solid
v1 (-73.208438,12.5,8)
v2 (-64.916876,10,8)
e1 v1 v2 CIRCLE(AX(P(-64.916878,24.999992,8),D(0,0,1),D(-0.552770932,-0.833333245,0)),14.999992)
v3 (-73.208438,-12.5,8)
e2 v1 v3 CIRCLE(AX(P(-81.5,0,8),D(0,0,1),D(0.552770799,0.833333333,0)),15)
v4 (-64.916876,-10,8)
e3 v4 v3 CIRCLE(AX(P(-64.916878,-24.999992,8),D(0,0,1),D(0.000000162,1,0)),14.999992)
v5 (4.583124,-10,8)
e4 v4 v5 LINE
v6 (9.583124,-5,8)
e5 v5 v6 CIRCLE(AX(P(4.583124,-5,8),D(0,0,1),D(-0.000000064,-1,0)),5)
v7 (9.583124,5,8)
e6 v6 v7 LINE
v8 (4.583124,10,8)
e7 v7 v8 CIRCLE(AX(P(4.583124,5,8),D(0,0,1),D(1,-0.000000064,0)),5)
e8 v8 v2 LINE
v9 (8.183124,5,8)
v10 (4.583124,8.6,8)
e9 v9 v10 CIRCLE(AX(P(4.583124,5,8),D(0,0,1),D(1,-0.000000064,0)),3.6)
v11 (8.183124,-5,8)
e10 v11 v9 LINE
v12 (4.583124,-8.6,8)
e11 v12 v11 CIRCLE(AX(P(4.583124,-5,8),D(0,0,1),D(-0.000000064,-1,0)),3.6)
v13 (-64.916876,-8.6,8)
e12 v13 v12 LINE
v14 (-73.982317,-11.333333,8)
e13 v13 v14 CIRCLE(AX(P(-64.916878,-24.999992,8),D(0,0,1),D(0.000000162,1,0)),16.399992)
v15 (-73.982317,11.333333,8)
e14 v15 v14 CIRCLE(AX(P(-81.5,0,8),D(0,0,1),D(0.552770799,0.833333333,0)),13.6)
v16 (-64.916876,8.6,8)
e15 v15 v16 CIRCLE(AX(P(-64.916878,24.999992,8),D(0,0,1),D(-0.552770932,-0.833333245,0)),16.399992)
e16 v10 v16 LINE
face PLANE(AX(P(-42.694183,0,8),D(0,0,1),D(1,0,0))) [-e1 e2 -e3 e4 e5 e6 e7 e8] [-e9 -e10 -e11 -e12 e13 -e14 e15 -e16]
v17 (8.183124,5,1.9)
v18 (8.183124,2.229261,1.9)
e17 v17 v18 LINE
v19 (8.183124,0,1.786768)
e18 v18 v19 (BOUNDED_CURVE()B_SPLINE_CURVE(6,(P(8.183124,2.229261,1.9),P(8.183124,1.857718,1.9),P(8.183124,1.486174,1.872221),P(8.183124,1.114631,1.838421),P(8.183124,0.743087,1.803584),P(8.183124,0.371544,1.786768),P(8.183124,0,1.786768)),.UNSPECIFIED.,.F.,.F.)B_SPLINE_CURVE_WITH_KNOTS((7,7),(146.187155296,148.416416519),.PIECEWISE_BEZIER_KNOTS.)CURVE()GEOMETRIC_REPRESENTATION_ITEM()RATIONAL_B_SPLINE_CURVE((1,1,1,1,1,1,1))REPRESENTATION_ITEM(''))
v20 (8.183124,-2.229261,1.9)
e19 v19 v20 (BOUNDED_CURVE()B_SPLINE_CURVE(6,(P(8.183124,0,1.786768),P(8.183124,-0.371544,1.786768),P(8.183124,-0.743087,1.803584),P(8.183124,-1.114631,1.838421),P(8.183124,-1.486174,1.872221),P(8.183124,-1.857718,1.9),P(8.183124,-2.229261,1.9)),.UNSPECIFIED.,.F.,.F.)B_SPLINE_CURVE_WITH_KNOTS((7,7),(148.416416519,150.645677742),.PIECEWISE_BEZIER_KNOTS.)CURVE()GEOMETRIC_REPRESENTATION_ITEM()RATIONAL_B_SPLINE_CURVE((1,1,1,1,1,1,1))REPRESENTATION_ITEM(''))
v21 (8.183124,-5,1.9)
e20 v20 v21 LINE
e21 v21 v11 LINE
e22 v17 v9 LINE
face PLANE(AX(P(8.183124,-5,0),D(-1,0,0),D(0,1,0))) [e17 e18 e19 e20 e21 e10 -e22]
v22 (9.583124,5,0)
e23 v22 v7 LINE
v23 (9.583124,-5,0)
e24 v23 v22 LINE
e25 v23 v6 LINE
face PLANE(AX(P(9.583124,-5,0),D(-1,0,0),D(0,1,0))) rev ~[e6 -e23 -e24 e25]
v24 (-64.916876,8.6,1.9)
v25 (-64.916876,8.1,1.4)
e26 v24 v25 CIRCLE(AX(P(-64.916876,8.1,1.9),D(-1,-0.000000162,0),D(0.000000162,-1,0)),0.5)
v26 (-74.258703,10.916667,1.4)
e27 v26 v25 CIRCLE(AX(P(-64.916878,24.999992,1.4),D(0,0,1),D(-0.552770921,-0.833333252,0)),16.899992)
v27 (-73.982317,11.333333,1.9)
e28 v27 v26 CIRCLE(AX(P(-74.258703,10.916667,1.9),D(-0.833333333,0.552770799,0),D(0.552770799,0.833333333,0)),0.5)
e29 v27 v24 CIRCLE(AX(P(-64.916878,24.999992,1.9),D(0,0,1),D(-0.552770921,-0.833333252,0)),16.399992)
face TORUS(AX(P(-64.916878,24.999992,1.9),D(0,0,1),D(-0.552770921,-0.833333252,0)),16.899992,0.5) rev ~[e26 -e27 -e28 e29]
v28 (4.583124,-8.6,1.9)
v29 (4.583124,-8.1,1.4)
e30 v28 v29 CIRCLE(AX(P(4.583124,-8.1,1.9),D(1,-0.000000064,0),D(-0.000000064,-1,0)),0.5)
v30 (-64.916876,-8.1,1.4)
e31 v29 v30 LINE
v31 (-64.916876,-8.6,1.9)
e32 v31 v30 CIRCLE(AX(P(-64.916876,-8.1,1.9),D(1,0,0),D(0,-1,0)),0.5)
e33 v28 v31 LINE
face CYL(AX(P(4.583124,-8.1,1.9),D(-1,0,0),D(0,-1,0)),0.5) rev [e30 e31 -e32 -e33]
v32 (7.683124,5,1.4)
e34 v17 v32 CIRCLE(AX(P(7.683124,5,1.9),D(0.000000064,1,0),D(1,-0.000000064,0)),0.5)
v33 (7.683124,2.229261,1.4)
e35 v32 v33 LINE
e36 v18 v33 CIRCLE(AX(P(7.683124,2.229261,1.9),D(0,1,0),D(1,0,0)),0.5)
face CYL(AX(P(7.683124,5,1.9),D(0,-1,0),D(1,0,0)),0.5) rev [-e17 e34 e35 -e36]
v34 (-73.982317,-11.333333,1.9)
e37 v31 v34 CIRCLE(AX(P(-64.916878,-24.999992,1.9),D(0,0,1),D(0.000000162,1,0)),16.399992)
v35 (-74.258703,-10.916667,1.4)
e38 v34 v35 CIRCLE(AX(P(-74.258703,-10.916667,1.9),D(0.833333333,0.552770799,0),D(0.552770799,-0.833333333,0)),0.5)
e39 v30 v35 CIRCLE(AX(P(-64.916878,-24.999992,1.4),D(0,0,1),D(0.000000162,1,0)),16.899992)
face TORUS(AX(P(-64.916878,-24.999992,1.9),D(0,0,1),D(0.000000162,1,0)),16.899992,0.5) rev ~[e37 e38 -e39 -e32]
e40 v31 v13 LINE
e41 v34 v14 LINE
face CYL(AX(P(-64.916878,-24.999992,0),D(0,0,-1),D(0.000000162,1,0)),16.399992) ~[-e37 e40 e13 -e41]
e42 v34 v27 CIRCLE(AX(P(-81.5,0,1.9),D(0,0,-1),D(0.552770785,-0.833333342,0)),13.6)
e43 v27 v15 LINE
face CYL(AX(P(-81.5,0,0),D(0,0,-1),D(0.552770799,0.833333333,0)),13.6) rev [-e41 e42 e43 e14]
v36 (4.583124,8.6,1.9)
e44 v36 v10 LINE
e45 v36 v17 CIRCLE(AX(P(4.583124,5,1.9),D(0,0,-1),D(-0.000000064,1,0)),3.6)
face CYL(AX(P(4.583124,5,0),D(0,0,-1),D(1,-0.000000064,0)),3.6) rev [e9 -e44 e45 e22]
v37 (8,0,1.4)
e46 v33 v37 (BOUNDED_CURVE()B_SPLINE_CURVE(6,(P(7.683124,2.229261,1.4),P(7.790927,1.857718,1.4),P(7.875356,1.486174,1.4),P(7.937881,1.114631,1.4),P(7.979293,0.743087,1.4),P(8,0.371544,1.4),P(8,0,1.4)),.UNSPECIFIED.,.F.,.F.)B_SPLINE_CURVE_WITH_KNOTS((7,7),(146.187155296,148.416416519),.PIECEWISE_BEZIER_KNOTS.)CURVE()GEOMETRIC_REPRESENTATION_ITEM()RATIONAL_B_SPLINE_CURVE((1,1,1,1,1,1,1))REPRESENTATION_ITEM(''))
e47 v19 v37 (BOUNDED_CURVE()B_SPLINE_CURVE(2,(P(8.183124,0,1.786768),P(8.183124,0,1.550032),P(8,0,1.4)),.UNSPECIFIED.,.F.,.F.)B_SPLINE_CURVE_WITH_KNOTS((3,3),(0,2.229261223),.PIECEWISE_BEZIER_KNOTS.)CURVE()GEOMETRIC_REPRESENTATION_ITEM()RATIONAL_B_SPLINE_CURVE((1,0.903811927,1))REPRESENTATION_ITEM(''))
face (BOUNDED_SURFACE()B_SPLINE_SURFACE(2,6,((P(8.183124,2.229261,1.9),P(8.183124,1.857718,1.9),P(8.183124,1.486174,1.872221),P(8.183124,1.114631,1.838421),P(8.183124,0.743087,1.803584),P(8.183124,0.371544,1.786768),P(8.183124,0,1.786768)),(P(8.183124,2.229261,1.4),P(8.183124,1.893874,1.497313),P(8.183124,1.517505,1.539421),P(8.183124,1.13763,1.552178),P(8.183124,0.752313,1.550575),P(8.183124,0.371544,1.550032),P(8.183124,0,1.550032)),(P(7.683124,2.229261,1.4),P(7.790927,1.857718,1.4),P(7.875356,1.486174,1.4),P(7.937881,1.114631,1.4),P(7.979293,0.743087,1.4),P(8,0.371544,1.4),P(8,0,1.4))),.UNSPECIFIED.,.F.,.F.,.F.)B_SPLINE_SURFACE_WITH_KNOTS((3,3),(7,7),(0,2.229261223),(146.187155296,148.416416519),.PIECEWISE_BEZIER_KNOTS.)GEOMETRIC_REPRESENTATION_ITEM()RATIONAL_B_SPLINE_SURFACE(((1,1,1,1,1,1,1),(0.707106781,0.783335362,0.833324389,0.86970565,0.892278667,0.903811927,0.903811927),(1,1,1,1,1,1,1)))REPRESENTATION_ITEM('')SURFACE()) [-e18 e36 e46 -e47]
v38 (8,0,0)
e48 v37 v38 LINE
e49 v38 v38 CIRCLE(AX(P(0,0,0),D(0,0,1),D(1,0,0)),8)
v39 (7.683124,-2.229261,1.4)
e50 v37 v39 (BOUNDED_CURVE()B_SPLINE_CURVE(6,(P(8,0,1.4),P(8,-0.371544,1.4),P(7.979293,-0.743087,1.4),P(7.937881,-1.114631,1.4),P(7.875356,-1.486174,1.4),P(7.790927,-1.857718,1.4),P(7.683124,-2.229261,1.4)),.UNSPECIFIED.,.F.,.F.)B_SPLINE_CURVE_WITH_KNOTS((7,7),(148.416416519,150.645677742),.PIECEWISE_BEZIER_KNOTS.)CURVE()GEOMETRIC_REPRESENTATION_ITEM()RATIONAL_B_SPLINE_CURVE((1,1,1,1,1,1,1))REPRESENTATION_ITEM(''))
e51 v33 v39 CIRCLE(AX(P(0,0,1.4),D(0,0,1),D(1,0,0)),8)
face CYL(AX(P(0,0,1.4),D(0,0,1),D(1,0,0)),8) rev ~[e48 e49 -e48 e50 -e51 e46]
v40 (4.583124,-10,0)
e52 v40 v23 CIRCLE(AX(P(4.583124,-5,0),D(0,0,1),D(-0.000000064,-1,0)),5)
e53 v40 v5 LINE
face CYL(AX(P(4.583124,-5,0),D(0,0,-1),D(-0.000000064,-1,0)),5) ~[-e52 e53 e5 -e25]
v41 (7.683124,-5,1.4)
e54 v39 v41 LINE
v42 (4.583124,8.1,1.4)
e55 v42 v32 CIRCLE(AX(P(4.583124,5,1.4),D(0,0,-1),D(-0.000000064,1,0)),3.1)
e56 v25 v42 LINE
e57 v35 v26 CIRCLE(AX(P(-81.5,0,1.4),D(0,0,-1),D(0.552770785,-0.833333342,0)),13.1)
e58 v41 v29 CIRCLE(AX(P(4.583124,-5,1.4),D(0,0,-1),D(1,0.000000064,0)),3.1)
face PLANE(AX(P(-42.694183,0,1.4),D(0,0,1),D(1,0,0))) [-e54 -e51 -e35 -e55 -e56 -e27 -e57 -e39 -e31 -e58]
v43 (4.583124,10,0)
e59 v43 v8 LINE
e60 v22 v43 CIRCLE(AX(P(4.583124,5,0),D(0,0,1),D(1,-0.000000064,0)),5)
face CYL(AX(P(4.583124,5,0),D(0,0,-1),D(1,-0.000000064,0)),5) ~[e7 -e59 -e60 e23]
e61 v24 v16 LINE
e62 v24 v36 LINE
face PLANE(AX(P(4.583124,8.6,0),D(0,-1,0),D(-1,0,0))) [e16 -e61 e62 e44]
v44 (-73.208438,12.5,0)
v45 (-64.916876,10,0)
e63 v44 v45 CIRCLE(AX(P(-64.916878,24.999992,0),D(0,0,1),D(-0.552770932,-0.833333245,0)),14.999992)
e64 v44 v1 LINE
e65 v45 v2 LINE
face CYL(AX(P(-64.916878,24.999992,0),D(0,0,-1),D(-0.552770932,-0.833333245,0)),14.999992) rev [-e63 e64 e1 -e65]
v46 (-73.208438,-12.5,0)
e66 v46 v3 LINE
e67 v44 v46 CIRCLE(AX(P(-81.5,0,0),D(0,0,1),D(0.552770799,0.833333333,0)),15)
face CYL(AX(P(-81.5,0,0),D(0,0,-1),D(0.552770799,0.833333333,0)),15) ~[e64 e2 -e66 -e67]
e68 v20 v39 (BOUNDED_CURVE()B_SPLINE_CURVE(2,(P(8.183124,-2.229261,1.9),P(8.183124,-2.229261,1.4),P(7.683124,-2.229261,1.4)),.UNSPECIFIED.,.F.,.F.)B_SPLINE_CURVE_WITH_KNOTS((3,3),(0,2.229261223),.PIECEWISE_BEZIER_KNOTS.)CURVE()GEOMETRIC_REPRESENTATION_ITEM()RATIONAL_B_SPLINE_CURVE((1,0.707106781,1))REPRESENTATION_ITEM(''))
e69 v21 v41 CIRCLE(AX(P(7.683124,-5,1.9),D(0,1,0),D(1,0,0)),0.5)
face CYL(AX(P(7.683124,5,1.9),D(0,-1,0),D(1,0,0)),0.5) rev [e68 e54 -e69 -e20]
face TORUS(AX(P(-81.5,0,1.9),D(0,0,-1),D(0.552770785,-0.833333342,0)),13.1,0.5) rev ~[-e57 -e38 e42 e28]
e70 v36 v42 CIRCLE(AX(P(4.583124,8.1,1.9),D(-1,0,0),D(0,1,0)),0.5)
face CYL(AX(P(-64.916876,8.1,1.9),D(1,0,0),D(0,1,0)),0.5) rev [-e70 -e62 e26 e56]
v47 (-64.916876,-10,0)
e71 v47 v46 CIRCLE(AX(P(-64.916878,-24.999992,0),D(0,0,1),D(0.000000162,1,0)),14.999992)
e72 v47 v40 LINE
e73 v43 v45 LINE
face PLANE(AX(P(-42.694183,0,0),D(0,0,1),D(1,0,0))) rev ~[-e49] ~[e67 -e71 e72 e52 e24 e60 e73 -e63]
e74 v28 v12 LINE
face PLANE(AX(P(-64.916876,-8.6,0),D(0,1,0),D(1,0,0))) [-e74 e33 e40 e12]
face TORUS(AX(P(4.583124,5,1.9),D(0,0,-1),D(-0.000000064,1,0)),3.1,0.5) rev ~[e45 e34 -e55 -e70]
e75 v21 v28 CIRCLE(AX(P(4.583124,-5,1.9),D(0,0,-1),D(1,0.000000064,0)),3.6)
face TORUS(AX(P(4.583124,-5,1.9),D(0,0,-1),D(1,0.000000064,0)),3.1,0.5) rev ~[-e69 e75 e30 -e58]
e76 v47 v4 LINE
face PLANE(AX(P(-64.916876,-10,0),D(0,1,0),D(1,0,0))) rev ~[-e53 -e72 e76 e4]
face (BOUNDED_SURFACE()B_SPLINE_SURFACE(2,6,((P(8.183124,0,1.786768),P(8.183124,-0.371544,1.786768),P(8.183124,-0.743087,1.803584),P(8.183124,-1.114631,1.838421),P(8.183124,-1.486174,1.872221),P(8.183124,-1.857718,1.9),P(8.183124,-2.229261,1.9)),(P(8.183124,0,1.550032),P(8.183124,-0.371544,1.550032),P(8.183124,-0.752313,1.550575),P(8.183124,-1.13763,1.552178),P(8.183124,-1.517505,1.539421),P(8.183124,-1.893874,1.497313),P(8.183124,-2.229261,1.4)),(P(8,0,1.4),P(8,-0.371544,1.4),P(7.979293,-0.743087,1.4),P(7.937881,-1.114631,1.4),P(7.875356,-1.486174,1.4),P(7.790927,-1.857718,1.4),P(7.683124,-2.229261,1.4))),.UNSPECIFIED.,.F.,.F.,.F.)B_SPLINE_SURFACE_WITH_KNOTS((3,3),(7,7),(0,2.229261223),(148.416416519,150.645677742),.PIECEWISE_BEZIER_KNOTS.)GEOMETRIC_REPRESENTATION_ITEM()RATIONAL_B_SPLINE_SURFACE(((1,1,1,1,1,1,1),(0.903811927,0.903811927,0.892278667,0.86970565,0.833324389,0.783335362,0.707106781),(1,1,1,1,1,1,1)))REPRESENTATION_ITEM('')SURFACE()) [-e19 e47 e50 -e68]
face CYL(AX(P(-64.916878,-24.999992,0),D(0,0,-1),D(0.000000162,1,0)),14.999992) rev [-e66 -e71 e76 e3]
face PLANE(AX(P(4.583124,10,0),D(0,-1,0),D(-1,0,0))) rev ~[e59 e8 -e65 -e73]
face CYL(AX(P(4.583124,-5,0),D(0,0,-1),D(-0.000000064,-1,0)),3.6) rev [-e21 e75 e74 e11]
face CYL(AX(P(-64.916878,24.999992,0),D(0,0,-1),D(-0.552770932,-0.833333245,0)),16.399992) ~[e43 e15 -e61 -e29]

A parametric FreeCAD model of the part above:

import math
import FreeCAD as App
import Part
import Sketcher
Q = App.Units.Quantity


def edges_at(feature, points):
    """Names of the edges that pass closest to the given points."""
    edges = feature.Shape.Edges
    near = lambda p: min(range(len(edges)), key=lambda i: edges[i].distToShape(Part.Vertex(*p))[0])
    return sorted({f"Edge{near(p) + 1}" for p in points})


def faces_at(feature, points):
    """Names of the faces that lie closest to the given points."""
    faces = feature.Shape.Faces
    near = lambda p: min(range(len(faces)), key=lambda i: faces[i].distToShape(Part.Vertex(*p))[0])
    return sorted({f"Face{near(p) + 1}" for p in points})

doc = App.newDocument("Part")
body = doc.addObject("PartDesign::Body", "Body")

# Sketch on XY plane
sketch1 = body.newObject("Sketcher::SketchObject", "Sketch")
sketch1.AttachmentSupport = (doc.getObject("XY_Plane"), [""])
sketch1.MapMode = "FlatFace"
sketch1.addGeometry([
    Part.LineSegment(App.Vector(-64.9, -10, 0), App.Vector(4.6, -10, 0)),  # 0
    Part.ArcOfCircle(Part.Circle(App.Vector(4.6, -5, 0), App.Vector(0, 0, 1), 5), math.radians(-90), math.radians(0)),  # 1
    Part.LineSegment(App.Vector(9.6, -5, 0), App.Vector(9.6, 5, 0)),  # 2
    Part.ArcOfCircle(Part.Circle(App.Vector(4.6, 5, 0), App.Vector(0, 0, 1), 5), math.radians(0), math.radians(90)),  # 3
    Part.LineSegment(App.Vector(4.6, 10, 0), App.Vector(-64.9, 10, 0)),  # 4
    Part.ArcOfCircle(Part.Circle(App.Vector(-64.9, 25, 0), App.Vector(0, 0, 1), 15), math.radians(-124), math.radians(-90)),  # 5
    Part.ArcOfCircle(Part.Circle(App.Vector(-81.5, 0, 0), App.Vector(0, 0, 1), 15), math.radians(56), math.radians(304)),  # 6
    Part.ArcOfCircle(Part.Circle(App.Vector(-64.9, -25, 0), App.Vector(0, 0, 1), 15), math.radians(90), math.radians(124)),  # 7
], False)
sketch1.addConstraint([
    Sketcher.Constraint("Tangent", 0, 2, 1, 1),
    Sketcher.Constraint("Tangent", 1, 2, 2, 1),
    Sketcher.Constraint("Tangent", 2, 2, 3, 1),
    Sketcher.Constraint("Tangent", 3, 2, 4, 1),
    Sketcher.Constraint("Tangent", 4, 2, 5, 2),
    Sketcher.Constraint("Tangent", 5, 1, 6, 1),
    Sketcher.Constraint("Tangent", 6, 2, 7, 2),
    Sketcher.Constraint("Tangent", 7, 1, 0, 1),
    Sketcher.Constraint("Horizontal", 0),
    Sketcher.Constraint("Vertical", 2),
    Sketcher.Constraint("Horizontal", 4),
    Sketcher.Constraint("Equal", 1, 3),
    Sketcher.Constraint("Equal", 5, 7),
    Sketcher.Constraint("Symmetric", 5, 3, 7, 3, -1),
    Sketcher.Constraint("Radius", 1, Q("5 mm")),
    Sketcher.Constraint("Radius", 6, Q("15 mm")),
    Sketcher.Constraint("DistanceY", 2, 1, 2, 2, Q("10 mm")),
    Sketcher.Constraint("DistanceX", 0, 1, 0, 2, Q("69.5 mm")),
    Sketcher.Constraint("DistanceY", 6, 2, 5, 1, Q("25 mm")),
    Sketcher.Constraint("DistanceX", 6, 3, -1, 1, Q("81.5 mm")),
])
pad1 = body.newObject("PartDesign::Pad", "Pad")
pad1.Profile = sketch1
pad1.Length = 8
doc.recompute()

thickness = body.newObject("PartDesign::Thickness", "Thickness")
thickness.Base = (pad1, faces_at(pad1, [(-43.458, 0, 8)]))
thickness.Value = 1.4
thickness.Reversed = True
thickness.Join = "Arc"

# Sketch on XY plane
sketch2 = body.newObject("Sketcher::SketchObject", "Sketch001")
sketch2.AttachmentSupport = (doc.getObject("XY_Plane"), [""])
sketch2.MapMode = "FlatFace"
sketch2.AttachmentOffset = App.Placement(App.Vector(0, 0, 1.4), App.Rotation())
sketch2.addGeometry(Part.Circle(App.Vector(0, 0, 0), App.Vector(0, 0, 1), 8), False)
sketch2.addConstraint([
    Sketcher.Constraint("Coincident", 0, 3, -1, 1),
    Sketcher.Constraint("Diameter", 0, Q("16 mm")),
])
pocket1 = body.newObject("PartDesign::Pocket", "Pocket")
pocket1.Profile = sketch2
pocket1.Length = 5
doc.recompute()

fillet = body.newObject("PartDesign::Fillet", "Fillet")
fillet.Base = (pocket1, edges_at(pocket1, [(-95.1, 0, 1.4)]))
fillet.Radius = 0.5

doc.recompute()
